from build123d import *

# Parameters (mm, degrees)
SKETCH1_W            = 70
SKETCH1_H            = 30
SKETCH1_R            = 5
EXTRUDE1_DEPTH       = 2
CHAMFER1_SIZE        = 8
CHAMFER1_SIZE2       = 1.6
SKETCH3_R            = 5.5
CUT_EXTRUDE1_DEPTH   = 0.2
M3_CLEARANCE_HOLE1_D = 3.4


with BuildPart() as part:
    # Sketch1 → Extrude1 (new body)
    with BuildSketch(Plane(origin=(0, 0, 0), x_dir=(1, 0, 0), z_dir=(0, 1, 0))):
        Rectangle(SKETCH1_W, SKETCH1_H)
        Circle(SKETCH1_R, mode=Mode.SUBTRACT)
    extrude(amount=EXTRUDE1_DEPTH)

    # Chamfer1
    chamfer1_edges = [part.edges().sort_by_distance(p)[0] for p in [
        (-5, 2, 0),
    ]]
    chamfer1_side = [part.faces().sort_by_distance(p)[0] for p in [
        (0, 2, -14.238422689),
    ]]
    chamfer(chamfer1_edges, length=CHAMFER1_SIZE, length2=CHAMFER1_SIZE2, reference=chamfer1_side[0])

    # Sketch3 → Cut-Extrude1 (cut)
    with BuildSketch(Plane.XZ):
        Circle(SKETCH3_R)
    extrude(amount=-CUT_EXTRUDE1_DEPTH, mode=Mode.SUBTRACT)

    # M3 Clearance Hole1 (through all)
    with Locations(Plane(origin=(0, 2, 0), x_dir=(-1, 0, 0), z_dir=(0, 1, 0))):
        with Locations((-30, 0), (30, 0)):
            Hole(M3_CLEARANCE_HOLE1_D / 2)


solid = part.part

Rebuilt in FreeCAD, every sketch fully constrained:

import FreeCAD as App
import Part
import Sketcher

V = App.Vector
Q = App.Units.Quantity


def edges_at(feature, points):
    """Names of the edges that pass closest to the given points."""
    edges = feature.Shape.Edges
    near = lambda p: min(range(len(edges)), key=lambda i: edges[i].distToShape(Part.Vertex(*p))[0])
    return sorted({f"Edge{near(p) + 1}" for p in points})

doc = App.newDocument("Part")
body = doc.addObject("PartDesign::Body", "Body")

# Sketch on XZ plane
sketch1 = body.newObject("Sketcher::SketchObject", "Sketch")
sketch1.AttachmentSupport = (doc.getObject("XZ_Plane"), [""])
sketch1.MapMode = "FlatFace"
sketch1.addGeometry([
    Part.LineSegment(V(-35, -15, 0), V(-35, 15, 0)),  # 0
    Part.LineSegment(V(-35, 15, 0), V(35, 15, 0)),  # 1
    Part.LineSegment(V(35, 15, 0), V(35, -15, 0)),  # 2
    Part.LineSegment(V(35, -15, 0), V(-35, -15, 0)),  # 3
    Part.Circle(V(0, 0, 0), V(0, 0, 1), 5),  # 4
], False)
sketch1.addConstraint([
    Sketcher.Constraint("Coincident", 0, 2, 1, 1),
    Sketcher.Constraint("Coincident", 1, 2, 2, 1),
    Sketcher.Constraint("Coincident", 2, 2, 3, 1),
    Sketcher.Constraint("Coincident", 3, 2, 0, 1),
    Sketcher.Constraint("Vertical", 0),
    Sketcher.Constraint("Horizontal", 1),
    Sketcher.Constraint("Vertical", 2),
    Sketcher.Constraint("Horizontal", 3),
    Sketcher.Constraint("Coincident", 4, 3, -1, 1),
    Sketcher.Constraint("Symmetric", 0, 2, 2, 2, -1, 1),
    Sketcher.Constraint("Diameter", 4, Q("10 mm")),
    Sketcher.Constraint("DistanceX", 1, 1, 1, 2, Q("70 mm")),
    Sketcher.Constraint("DistanceY", 0, 1, 0, 2, Q("30 mm")),
])
pad1 = body.newObject("PartDesign::Pad", "Pad")
pad1.Profile = sketch1
pad1.Length = 2
pad1.Reversed = True
doc.recompute()

chamfer = body.newObject("PartDesign::Chamfer", "Chamfer")
chamfer.Base = (pad1, edges_at(pad1, [(-5, 2, 0)]))
chamfer.ChamferType = "Two distances"
chamfer.Size = 8
chamfer.Size2 = 1.6
chamfer.FlipDirection = True

# Sketch on XZ plane
sketch2 = body.newObject("Sketcher::SketchObject", "Sketch001")
sketch2.AttachmentSupport = (doc.getObject("XZ_Plane"), [""])
sketch2.MapMode = "FlatFace"
sketch2.addGeometry(Part.Circle(V(0, 0, 0), V(0, 0, 1), 6), False)
sketch2.addConstraint([
    Sketcher.Constraint("Coincident", 0, 3, -1, 1),
    Sketcher.Constraint("Diameter", 0, Q("11 mm")),
])
pocket1 = body.newObject("PartDesign::Pocket", "Pocket")
pocket1.Profile = sketch2
pocket1.Length = 0.2

# Sketch on XZ plane
sketch3 = body.newObject("Sketcher::SketchObject", "Sketch002")
sketch3.AttachmentSupport = (doc.getObject("XZ_Plane"), [""])
sketch3.MapMode = "FlatFace"
sketch3.AttachmentOffset = App.Placement(V(0, 0, -2), App.Rotation())
sketch3.addGeometry([
    Part.Circle(V(30, 0, 0), V(0, 0, 1), 1.7),
    Part.Circle(V(-30, 0, 0), V(0, 0, 1), 1.7),
], False)
sketch3.addConstraint([
    Sketcher.Constraint("Equal", 0, 1),
    Sketcher.Constraint("Symmetric", 0, 3, 1, 3, -1, 1),
    Sketcher.Constraint("PointOnObject", 0, 3, -1),
    Sketcher.Constraint("Diameter", 0, Q("3.4 mm")),
    Sketcher.Constraint("DistanceX", -1, 1, 0, 3, Q("30 mm")),
])
doc.recompute()
hole = body.newObject("PartDesign::Hole", "Hole")
hole.Profile = sketch3
hole.ThreadType = "None"
hole.Diameter = 3.4
hole.DepthType = "ThroughAll"
hole.Reversed = True

doc.recompute()
